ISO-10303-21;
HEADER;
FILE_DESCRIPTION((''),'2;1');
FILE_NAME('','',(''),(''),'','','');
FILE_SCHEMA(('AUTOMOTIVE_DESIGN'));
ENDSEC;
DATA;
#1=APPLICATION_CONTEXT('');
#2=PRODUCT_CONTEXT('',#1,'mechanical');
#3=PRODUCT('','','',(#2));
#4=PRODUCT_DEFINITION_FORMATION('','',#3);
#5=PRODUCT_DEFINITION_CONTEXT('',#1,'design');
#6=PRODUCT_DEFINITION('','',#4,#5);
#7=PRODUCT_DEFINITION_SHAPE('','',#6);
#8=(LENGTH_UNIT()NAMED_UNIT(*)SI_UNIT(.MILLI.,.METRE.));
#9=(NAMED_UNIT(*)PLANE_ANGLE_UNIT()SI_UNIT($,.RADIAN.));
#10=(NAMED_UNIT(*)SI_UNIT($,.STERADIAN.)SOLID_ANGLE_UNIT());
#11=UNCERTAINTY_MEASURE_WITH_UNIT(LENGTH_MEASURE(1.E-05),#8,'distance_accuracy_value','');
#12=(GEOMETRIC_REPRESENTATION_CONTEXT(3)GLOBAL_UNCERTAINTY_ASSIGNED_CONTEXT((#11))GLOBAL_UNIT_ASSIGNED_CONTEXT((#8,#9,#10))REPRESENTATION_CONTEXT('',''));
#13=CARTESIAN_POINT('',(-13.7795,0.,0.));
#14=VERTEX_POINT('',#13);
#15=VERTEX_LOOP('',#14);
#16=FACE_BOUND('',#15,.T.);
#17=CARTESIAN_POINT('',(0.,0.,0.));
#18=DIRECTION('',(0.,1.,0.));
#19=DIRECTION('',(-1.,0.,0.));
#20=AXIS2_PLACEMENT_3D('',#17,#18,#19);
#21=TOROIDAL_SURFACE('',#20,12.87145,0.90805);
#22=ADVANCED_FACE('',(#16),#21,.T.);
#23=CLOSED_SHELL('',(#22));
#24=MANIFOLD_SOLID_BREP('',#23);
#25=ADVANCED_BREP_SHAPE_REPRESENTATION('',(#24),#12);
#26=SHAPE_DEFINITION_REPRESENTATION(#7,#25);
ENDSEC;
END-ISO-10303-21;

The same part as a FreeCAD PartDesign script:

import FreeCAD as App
import Part
import Sketcher

doc = App.newDocument("Part")
body = doc.addObject("PartDesign::Body", "Body")

# Sketch on XY plane
sketch1 = body.newObject("Sketcher::SketchObject", "Sketch")
sketch1.AttachmentSupport = (doc.getObject("XY_Plane"), [""])
sketch1.MapMode = "FlatFace"
sketch1.addGeometry(Part.Circle(App.Vector(-12.9, 0, 0), App.Vector(0, 0, 1), 0.9), False)
sketch1.addConstraint([
    Sketcher.Constraint("PointOnObject", 0, 3, -1),
    Sketcher.Constraint("Diameter", 0, 1.8161),
    Sketcher.Constraint("DistanceX", 0, 3, -1, 1, 12.87145),
])
revolution = body.newObject("PartDesign::Revolution", "Revolution")
revolution.Profile = sketch1
revolution.ReferenceAxis = (sketch1, ["V_Axis"])
revolution.Angle = 360

doc.recompute()
